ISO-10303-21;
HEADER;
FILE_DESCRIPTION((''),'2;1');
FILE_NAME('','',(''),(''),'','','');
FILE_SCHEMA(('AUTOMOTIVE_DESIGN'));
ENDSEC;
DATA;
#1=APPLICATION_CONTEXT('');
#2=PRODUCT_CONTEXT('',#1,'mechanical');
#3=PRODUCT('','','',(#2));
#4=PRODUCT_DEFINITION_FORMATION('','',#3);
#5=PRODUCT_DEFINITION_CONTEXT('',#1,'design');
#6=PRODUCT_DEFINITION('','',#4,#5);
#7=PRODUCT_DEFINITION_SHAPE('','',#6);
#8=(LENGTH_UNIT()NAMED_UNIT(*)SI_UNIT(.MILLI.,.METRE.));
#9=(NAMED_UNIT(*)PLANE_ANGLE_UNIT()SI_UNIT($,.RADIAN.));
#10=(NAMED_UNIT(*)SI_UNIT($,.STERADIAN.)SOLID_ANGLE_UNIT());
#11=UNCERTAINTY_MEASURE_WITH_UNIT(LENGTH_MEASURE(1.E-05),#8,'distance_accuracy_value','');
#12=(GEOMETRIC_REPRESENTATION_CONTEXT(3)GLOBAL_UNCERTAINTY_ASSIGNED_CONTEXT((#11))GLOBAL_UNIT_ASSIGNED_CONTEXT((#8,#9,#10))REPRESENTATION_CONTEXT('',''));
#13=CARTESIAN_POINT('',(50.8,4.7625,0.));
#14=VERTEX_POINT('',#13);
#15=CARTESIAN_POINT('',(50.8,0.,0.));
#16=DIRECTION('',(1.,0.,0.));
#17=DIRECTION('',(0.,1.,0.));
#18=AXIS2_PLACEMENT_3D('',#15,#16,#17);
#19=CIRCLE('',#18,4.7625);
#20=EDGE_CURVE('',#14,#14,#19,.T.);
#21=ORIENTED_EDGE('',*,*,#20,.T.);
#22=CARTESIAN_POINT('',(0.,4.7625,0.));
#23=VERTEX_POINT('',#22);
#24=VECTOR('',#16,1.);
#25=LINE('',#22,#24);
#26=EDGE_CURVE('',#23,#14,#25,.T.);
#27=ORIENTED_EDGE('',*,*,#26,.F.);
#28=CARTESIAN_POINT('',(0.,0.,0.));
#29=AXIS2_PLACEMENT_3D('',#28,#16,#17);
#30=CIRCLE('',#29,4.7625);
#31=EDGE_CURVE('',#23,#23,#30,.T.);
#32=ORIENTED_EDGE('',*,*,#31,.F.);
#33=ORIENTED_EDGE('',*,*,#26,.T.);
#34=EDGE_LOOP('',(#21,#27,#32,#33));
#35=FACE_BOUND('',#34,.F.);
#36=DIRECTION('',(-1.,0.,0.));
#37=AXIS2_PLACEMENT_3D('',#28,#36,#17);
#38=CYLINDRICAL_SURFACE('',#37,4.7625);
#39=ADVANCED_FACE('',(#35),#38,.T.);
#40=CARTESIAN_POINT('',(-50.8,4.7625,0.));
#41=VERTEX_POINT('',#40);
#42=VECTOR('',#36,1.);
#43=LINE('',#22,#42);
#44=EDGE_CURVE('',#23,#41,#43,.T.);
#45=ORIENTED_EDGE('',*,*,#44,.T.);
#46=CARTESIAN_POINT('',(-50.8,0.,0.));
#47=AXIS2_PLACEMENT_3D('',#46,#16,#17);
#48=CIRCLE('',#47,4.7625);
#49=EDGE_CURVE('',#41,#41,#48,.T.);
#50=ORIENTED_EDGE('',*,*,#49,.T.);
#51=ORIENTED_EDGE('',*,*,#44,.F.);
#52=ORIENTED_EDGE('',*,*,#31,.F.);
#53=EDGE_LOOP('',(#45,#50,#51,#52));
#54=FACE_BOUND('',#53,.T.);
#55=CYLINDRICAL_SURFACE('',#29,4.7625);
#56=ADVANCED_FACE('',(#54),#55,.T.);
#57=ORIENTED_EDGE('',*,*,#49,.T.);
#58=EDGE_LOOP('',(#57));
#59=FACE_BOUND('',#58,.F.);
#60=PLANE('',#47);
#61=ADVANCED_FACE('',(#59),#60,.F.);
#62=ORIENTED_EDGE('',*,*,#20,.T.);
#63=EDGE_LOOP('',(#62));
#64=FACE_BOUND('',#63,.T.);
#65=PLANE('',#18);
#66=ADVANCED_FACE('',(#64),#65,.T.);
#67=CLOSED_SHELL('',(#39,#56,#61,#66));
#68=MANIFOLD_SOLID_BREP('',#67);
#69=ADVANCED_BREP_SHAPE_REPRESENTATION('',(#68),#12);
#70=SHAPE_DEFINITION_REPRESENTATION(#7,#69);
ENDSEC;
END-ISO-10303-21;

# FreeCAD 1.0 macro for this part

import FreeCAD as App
import Part
import Sketcher
from FreeCAD import Vector
Q = App.Units.Quantity

doc = App.newDocument("Part")
params = doc.addObject("Spreadsheet::Sheet", "Params")
for row, (alias, value) in enumerate([
    ("sketch1_diameter", "0.375 in"),
    ("pad1_length", "4 in"),
], start=1):
    params.set(f"A{row}", alias)
    params.set(f"B{row}", "=" + value)
    params.setAlias(f"B{row}", alias)

body = doc.addObject("PartDesign::Body", "Body")

# Sketch on YZ plane
sketch1 = doc.addObject("Sketcher::SketchObject", "Sketch")
body.addObject(sketch1)
sketch1.AttachmentSupport = (doc.YZ_Plane, [""])
sketch1.MapMode = "FlatFace"
sketch1.addGeometry(Part.Circle(Vector(0, 0, 0), Vector(0, 0, 1), 4.8), False)
sketch1.addConstraint(Sketcher.Constraint("Coincident", 0, 3, -1, 1))
sketch1.addConstraint(Sketcher.Constraint("Diameter", 0, Q("0.375 in")))
sketch1.setExpression("Constraints[1]", "Params.sketch1_diameter")
pad1 = doc.addObject("PartDesign::Pad", "Pad")
body.addObject(pad1)
pad1.Profile = sketch1
pad1.setExpression("Length", "Params.pad1_length")
pad1.Midplane = True

doc.recompute()
